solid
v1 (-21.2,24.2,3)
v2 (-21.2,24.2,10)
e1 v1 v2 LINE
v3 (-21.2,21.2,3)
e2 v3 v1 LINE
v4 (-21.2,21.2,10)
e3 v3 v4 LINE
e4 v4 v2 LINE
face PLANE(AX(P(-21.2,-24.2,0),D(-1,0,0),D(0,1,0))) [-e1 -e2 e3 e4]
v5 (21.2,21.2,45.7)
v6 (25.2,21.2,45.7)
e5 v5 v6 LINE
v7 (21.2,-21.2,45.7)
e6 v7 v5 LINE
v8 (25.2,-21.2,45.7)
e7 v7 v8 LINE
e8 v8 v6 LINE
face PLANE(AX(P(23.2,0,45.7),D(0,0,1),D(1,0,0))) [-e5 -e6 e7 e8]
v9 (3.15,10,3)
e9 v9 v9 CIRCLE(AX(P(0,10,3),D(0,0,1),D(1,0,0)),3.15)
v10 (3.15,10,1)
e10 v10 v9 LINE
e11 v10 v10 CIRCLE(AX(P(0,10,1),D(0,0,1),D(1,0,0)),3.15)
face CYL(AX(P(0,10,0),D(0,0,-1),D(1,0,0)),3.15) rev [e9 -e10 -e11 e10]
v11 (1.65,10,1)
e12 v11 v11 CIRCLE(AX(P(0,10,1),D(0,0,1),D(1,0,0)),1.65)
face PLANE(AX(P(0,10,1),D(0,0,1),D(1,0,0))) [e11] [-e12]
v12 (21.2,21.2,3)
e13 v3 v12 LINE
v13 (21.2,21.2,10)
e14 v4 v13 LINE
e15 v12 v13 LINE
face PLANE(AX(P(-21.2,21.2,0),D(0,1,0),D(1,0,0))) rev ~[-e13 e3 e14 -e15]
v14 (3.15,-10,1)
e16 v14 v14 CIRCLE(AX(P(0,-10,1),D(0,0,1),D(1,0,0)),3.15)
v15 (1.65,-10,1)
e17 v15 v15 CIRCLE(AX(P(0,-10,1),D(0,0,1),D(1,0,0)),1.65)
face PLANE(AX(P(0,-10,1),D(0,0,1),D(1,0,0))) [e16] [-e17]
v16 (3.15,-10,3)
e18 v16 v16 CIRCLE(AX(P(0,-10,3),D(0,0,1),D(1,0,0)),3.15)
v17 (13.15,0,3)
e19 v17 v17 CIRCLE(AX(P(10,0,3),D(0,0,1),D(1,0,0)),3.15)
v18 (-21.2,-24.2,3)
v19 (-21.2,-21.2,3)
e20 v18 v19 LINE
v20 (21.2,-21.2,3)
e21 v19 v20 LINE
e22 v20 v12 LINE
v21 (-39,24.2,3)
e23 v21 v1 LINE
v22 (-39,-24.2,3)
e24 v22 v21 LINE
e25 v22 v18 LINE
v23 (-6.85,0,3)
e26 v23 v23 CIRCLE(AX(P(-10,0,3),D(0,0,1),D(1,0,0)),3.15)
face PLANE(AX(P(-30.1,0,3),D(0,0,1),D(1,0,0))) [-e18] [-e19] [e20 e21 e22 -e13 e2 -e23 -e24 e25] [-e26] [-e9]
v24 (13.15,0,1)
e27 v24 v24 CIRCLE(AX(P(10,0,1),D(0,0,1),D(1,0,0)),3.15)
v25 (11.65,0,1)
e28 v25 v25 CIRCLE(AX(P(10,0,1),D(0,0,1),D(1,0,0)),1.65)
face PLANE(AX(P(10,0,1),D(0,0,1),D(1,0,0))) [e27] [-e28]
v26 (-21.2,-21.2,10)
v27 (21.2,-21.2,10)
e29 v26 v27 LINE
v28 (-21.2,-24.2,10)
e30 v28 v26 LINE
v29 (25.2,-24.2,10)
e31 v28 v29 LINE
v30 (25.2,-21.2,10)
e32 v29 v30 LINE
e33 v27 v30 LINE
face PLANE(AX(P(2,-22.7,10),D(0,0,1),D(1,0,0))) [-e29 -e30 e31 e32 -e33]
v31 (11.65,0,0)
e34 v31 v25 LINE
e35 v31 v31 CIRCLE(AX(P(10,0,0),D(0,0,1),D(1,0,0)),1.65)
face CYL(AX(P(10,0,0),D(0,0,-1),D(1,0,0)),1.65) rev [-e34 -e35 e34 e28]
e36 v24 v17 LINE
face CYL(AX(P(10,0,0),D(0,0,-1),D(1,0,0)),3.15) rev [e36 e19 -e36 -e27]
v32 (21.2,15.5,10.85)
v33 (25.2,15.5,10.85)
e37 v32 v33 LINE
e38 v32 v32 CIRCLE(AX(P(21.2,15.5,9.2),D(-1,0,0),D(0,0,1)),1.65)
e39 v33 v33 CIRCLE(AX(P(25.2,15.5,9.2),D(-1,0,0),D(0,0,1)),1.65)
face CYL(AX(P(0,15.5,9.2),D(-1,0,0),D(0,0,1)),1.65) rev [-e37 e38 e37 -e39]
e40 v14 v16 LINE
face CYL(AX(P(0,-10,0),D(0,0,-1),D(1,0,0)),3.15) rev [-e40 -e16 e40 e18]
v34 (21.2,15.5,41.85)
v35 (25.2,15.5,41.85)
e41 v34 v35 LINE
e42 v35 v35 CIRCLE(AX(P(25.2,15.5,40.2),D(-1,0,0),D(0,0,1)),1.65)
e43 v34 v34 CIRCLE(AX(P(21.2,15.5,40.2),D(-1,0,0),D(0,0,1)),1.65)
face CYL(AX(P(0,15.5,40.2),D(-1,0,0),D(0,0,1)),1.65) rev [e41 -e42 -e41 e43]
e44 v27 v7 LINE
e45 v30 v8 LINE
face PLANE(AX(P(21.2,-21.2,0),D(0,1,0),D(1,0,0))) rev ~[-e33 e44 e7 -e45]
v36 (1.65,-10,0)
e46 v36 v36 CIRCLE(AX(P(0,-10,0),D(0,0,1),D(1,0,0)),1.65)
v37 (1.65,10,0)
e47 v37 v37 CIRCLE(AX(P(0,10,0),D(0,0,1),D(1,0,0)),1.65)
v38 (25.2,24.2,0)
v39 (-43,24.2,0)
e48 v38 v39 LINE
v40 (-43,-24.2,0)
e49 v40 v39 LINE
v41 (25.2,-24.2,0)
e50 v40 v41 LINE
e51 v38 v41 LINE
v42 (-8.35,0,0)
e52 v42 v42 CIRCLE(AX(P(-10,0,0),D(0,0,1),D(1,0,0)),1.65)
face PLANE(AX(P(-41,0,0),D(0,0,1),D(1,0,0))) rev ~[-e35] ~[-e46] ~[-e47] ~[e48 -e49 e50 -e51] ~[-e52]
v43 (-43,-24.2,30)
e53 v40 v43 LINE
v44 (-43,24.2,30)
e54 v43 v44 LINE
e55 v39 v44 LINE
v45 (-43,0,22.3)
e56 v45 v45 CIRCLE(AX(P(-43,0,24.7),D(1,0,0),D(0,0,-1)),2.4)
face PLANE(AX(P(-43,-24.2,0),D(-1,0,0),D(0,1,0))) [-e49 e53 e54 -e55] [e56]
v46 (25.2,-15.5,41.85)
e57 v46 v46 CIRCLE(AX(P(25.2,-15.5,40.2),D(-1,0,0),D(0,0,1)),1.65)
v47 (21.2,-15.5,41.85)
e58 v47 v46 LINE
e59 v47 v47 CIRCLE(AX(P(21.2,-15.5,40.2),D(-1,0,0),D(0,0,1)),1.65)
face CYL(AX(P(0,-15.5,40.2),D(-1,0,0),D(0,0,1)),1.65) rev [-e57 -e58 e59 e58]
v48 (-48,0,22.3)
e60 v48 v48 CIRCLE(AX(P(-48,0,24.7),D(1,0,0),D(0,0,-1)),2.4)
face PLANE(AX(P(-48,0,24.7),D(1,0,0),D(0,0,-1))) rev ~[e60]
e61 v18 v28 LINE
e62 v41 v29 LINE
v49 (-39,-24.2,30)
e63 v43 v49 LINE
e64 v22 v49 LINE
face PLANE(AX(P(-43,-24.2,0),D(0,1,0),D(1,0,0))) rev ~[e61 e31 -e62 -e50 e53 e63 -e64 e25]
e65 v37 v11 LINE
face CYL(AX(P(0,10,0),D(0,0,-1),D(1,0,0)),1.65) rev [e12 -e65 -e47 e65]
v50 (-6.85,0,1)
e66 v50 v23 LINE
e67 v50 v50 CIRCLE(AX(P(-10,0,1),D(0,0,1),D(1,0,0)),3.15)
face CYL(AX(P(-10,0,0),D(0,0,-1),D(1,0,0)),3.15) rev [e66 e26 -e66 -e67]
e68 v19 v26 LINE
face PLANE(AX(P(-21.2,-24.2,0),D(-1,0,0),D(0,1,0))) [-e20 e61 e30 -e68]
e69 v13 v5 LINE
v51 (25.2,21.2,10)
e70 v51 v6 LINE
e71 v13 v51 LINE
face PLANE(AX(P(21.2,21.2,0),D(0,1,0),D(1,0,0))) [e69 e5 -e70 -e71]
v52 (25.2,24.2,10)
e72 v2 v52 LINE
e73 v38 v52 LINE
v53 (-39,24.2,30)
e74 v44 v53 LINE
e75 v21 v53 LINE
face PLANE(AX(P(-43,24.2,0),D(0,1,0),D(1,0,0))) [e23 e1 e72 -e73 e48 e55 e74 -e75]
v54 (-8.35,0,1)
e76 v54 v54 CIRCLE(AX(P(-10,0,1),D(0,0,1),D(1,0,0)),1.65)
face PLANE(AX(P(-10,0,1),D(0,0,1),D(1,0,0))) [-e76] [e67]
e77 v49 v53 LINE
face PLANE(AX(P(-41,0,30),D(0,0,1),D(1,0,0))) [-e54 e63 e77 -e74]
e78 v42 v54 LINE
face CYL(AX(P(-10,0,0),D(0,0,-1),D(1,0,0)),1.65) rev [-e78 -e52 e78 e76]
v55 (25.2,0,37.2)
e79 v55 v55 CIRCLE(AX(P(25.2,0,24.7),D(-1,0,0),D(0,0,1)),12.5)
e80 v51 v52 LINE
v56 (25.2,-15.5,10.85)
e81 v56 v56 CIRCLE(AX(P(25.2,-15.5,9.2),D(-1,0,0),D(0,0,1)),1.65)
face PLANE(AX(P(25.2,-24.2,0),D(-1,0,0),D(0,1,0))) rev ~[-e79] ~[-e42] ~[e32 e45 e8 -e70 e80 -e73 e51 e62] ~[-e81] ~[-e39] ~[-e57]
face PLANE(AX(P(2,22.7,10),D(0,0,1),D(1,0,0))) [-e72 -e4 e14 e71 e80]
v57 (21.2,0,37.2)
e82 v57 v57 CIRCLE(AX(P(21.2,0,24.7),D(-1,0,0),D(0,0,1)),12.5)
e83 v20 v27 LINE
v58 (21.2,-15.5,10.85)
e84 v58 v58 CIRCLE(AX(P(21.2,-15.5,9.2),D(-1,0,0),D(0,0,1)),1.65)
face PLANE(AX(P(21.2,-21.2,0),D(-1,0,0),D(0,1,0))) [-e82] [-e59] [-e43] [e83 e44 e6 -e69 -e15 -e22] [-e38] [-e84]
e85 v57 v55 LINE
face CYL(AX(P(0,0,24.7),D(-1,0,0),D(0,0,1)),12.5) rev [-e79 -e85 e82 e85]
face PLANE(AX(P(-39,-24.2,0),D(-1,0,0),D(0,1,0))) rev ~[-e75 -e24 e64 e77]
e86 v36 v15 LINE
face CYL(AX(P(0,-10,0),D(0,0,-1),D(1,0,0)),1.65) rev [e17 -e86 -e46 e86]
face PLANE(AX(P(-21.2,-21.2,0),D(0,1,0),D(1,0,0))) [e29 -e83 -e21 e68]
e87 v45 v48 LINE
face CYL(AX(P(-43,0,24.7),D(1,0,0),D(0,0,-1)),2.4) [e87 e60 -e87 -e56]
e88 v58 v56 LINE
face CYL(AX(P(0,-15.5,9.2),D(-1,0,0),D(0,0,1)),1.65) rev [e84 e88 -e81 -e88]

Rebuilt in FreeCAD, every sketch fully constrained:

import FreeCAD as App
import Part
import Sketcher
Q = App.Units.Quantity

doc = App.newDocument("Part")
params = doc.addObject("Spreadsheet::Sheet", "Params")
for row, (alias, value) in enumerate([
    ("sketch1_diameter", "6.3 mm"),
    ("sketch1_width", "42.4 mm"),
    ("pad1_length", "3 mm"),
    ("sketch2_diameter", "6.3 mm"),
    ("sketch2_diameter2", "3.3 mm"),
    ("pad2_length", "1 mm"),
    ("sketch3_width", "4 mm"),
    ("sketch3_height", "42.4 mm"),
    ("pad3_length", "45.7 mm"),
    ("sketch4_diameter", "25 mm"),
    ("sketch4_diameter2", "3.3 mm"),
    ("pocket1_length", "45.2 mm"),
    ("sketch5_height", "3 mm"),
    ("sketch5_width", "46.4 mm"),
    ("pad4_length", "10 mm"),
    ("sketch6_width", "17.8 mm"),
    ("sketch6_height", "48.4 mm"),
    ("pad5_length", "3 mm"),
    ("sketch7_width", "4 mm"),
    ("sketch7_height", "48.4 mm"),
    ("pad6_length", "30 mm"),
    ("sketch8_diameter", "4.8 mm"),
    ("pad7_length", "5 mm"),
], start=1):
    params.set(f"A{row}", alias)
    params.set(f"B{row}", "=" + value)
    params.setAlias(f"B{row}", alias)

body = doc.addObject("PartDesign::Body", "Body")

# Sketch on XY plane
sketch1 = body.newObject("Sketcher::SketchObject", "Sketch")
sketch1.AttachmentSupport = (doc.getObject("XY_Plane"), [""])
sketch1.MapMode = "FlatFace"
sketch1.addGeometry([
    Part.LineSegment(App.Vector(-21.2, 21.2, 0), App.Vector(-21.2, -21.2, 0)),  # 0
    Part.LineSegment(App.Vector(-21.2, -21.2, 0), App.Vector(21.2, -21.2, 0)),  # 1
    Part.LineSegment(App.Vector(21.2, -21.2, 0), App.Vector(21.2, 21.2, 0)),  # 2
    Part.LineSegment(App.Vector(21.2, 21.2, 0), App.Vector(-21.2, 21.2, 0)),  # 3
    Part.Circle(App.Vector(0, -10, 0), App.Vector(0, 0, 1), 3.1),  # 4
    Part.Circle(App.Vector(-10, 0, 0), App.Vector(0, 0, 1), 3.1),  # 5
    Part.Circle(App.Vector(10, 0, 0), App.Vector(0, 0, 1), 3.1),  # 6
    Part.Circle(App.Vector(0, 10, 0), App.Vector(0, 0, 1), 3.1),  # 7
], False)
sketch1.addConstraint([
    Sketcher.Constraint("Coincident", 0, 2, 1, 1),
    Sketcher.Constraint("Coincident", 1, 2, 2, 1),
    Sketcher.Constraint("Coincident", 2, 2, 3, 1),
    Sketcher.Constraint("Coincident", 3, 2, 0, 1),
    Sketcher.Constraint("Vertical", 0),
    Sketcher.Constraint("Horizontal", 1),
    Sketcher.Constraint("Vertical", 2),
    Sketcher.Constraint("Horizontal", 3),
    Sketcher.Constraint("Equal", 4, 5),
    Sketcher.Constraint("Equal", 5, 6),
    Sketcher.Constraint("Equal", 6, 7),
    Sketcher.Constraint("Symmetric", 5, 3, 6, 3, -1, 1),
    Sketcher.Constraint("Symmetric", 4, 3, 7, 3, -1, 1),
    Sketcher.Constraint("Symmetric", 0, 2, 2, 2, -1, 1),
    Sketcher.Constraint("PointOnObject", 4, 3, -2),
    Sketcher.Constraint("PointOnObject", 5, 3, -1),
    Sketcher.Constraint("Equal", 3, 0),
    Sketcher.Constraint("Diameter", 4, Q("6.3 mm")),
    Sketcher.Constraint("DistanceX", 1, 1, 1, 2, Q("42.4 mm")),
    Sketcher.Constraint("DistanceY", 4, 3, -1, 1, Q("10 mm")),
    Sketcher.Constraint("DistanceX", 5, 3, -1, 1, Q("10 mm")),
])
sketch1.setExpression("Constraints[17]", "Params.sketch1_diameter")
sketch1.setExpression("Constraints[18]", "Params.sketch1_width")
pad1 = body.newObject("PartDesign::Pad", "Pad")
pad1.Profile = sketch1
pad1.setExpression("Length", "Params.pad1_length")

# Sketch on XY plane
sketch2 = body.newObject("Sketcher::SketchObject", "Sketch001")
sketch2.AttachmentSupport = (doc.getObject("XY_Plane"), [""])
sketch2.MapMode = "FlatFace"
sketch2.addGeometry([
    Part.Circle(App.Vector(-10, 0, 0), App.Vector(0, 0, 1), 3.1),  # 0
    Part.Circle(App.Vector(-10, 0, 0), App.Vector(0, 0, 1), 1.6),  # 1
    Part.Circle(App.Vector(0, 10, 0), App.Vector(0, 0, 1), 3.1),  # 2
    Part.Circle(App.Vector(0, 10, 0), App.Vector(0, 0, 1), 1.6),  # 3
    Part.Circle(App.Vector(10, 0, 0), App.Vector(0, 0, 1), 3.1),  # 4
    Part.Circle(App.Vector(10, 0, 0), App.Vector(0, 0, 1), 1.6),  # 5
    Part.Circle(App.Vector(0, -10, 0), App.Vector(0, 0, 1), 3.1),  # 6
    Part.Circle(App.Vector(0, -10, 0), App.Vector(0, 0, 1), 1.6),  # 7
], False)
sketch2.addConstraint([
    Sketcher.Constraint("Coincident", 1, 3, 0, 3),
    Sketcher.Constraint("Coincident", 3, 3, 2, 3),
    Sketcher.Constraint("Coincident", 5, 3, 4, 3),
    Sketcher.Constraint("Coincident", 7, 3, 6, 3),
    Sketcher.Constraint("Equal", 0, 2),
    Sketcher.Constraint("Equal", 1, 3),
    Sketcher.Constraint("Equal", 2, 4),
    Sketcher.Constraint("Equal", 3, 5),
    Sketcher.Constraint("Equal", 4, 6),
    Sketcher.Constraint("Equal", 5, 7),
    Sketcher.Constraint("Symmetric", 0, 3, 4, 3, -1, 1),
    Sketcher.Constraint("Symmetric", 2, 3, 6, 3, -1, 1),
    Sketcher.Constraint("PointOnObject", 0, 3, -1),
    Sketcher.Constraint("PointOnObject", 2, 3, -2),
    Sketcher.Constraint("Diameter", 0, Q("6.3 mm")),
    Sketcher.Constraint("Diameter", 1, Q("3.3 mm")),
    Sketcher.Constraint("DistanceX", 0, 3, -1, 1, Q("10 mm")),
    Sketcher.Constraint("DistanceY", -1, 1, 2, 3, Q("10 mm")),
])
sketch2.setExpression("Constraints[14]", "Params.sketch2_diameter")
sketch2.setExpression("Constraints[15]", "Params.sketch2_diameter2")
pad2 = body.newObject("PartDesign::Pad", "Pad001")
pad2.Profile = sketch2
pad2.setExpression("Length", "Params.pad2_length")

# Sketch on XY plane
sketch3 = body.newObject("Sketcher::SketchObject", "Sketch002")
sketch3.AttachmentSupport = (doc.getObject("XY_Plane"), [""])
sketch3.MapMode = "FlatFace"
sketch3.addGeometry([
    Part.LineSegment(App.Vector(21.2, 21.2, 0), App.Vector(21.2, -21.2, 0)),
    Part.LineSegment(App.Vector(21.2, -21.2, 0), App.Vector(25.2, -21.2, 0)),
    Part.LineSegment(App.Vector(25.2, -21.2, 0), App.Vector(25.2, 21.2, 0)),
    Part.LineSegment(App.Vector(25.2, 21.2, 0), App.Vector(21.2, 21.2, 0)),
], False)
sketch3.addConstraint([
    Sketcher.Constraint("Coincident", 0, 2, 1, 1),
    Sketcher.Constraint("Coincident", 1, 2, 2, 1),
    Sketcher.Constraint("Coincident", 2, 2, 3, 1),
    Sketcher.Constraint("Coincident", 3, 2, 0, 1),
    Sketcher.Constraint("Vertical", 0),
    Sketcher.Constraint("Horizontal", 1),
    Sketcher.Constraint("Vertical", 2),
    Sketcher.Constraint("Horizontal", 3),
    Sketcher.Constraint("DistanceX", 1, 1, 1, 2, Q("4 mm")),
    Sketcher.Constraint("DistanceY", 0, 2, 0, 1, Q("42.4 mm")),
    Sketcher.Constraint("DistanceX", -1, 1, 0, 2, Q("21.2 mm")),
    Sketcher.Constraint("DistanceY", 0, 2, -1, 1, Q("21.2 mm")),
])
sketch3.setExpression("Constraints[8]", "Params.sketch3_width")
sketch3.setExpression("Constraints[9]", "Params.sketch3_height")
pad3 = body.newObject("PartDesign::Pad", "Pad002")
pad3.Profile = sketch3
pad3.setExpression("Length", "Params.pad3_length")

# Sketch on YZ plane
sketch4 = body.newObject("Sketcher::SketchObject", "Sketch003")
sketch4.AttachmentSupport = (doc.getObject("YZ_Plane"), [""])
sketch4.MapMode = "FlatFace"
sketch4.addGeometry([
    Part.Circle(App.Vector(-15.5, 9.2, 0), App.Vector(0, 0, 1), 1.6),  # 0
    Part.Circle(App.Vector(-15.5, 40.2, 0), App.Vector(0, 0, 1), 1.6),  # 1
    Part.Circle(App.Vector(15.5, 40.2, 0), App.Vector(0, 0, 1), 1.6),  # 2
    Part.Circle(App.Vector(15.5, 9.2, 0), App.Vector(0, 0, 1), 1.6),  # 3
    Part.Circle(App.Vector(0, 24.7, 0), App.Vector(0, 0, 1), 12.5),  # 4
], False)
sketch4.addConstraint([
    Sketcher.Constraint("Equal", 0, 1),
    Sketcher.Constraint("Equal", 1, 2),
    Sketcher.Constraint("Equal", 2, 3),
    Sketcher.Constraint("Symmetric", 1, 3, 2, 3, -2),
    Sketcher.Constraint("Symmetric", 0, 3, 3, 3, -2),
    Sketcher.Constraint("PointOnObject", 4, 3, -2),
    Sketcher.Constraint("Vertical", 0, 3, 1, 3),
    Sketcher.Constraint("Diameter", 4, Q("25 mm")),
    Sketcher.Constraint("Diameter", 0, Q("3.3 mm")),
    Sketcher.Constraint("DistanceY", 0, 3, 1, 3, Q("31 mm")),
    Sketcher.Constraint("DistanceX", 1, 3, 2, 3, Q("31 mm")),
    Sketcher.Constraint("DistanceY", -1, 1, 0, 3, Q("9.2 mm")),
    Sketcher.Constraint("DistanceY", -1, 1, 4, 3, Q("24.7 mm")),
])
sketch4.setExpression("Constraints[7]", "Params.sketch4_diameter")
sketch4.setExpression("Constraints[8]", "Params.sketch4_diameter2")
pocket1 = body.newObject("PartDesign::Pocket", "Pocket")
pocket1.Profile = sketch4
pocket1.setExpression("Length", "Params.pocket1_length")
pocket1.Reversed = True

# Sketch on XY plane
sketch5 = body.newObject("Sketcher::SketchObject", "Sketch004")
sketch5.AttachmentSupport = (doc.getObject("XY_Plane"), [""])
sketch5.MapMode = "FlatFace"
sketch5.addGeometry([
    Part.LineSegment(App.Vector(-21.2, -21.2, 0), App.Vector(-21.2, -24.2, 0)),  # 0
    Part.LineSegment(App.Vector(-21.2, -24.2, 0), App.Vector(25.2, -24.2, 0)),  # 1
    Part.LineSegment(App.Vector(25.2, -24.2, 0), App.Vector(25.2, -21.2, 0)),  # 2
    Part.LineSegment(App.Vector(25.2, -21.2, 0), App.Vector(-21.2, -21.2, 0)),  # 3
    Part.LineSegment(App.Vector(-21.2, 24.2, 0), App.Vector(-21.2, 21.2, 0)),  # 4
    Part.LineSegment(App.Vector(-21.2, 21.2, 0), App.Vector(25.2, 21.2, 0)),  # 5
    Part.LineSegment(App.Vector(25.2, 21.2, 0), App.Vector(25.2, 24.2, 0)),  # 6
    Part.LineSegment(App.Vector(25.2, 24.2, 0), App.Vector(-21.2, 24.2, 0)),  # 7
], False)
sketch5.addConstraint([
    Sketcher.Constraint("Coincident", 0, 2, 1, 1),
    Sketcher.Constraint("Coincident", 1, 2, 2, 1),
    Sketcher.Constraint("Coincident", 2, 2, 3, 1),
    Sketcher.Constraint("Coincident", 3, 2, 0, 1),
    Sketcher.Constraint("Coincident", 4, 2, 5, 1),
    Sketcher.Constraint("Coincident", 5, 2, 6, 1),
    Sketcher.Constraint("Coincident", 6, 2, 7, 1),
    Sketcher.Constraint("Coincident", 7, 2, 4, 1),
    Sketcher.Constraint("Vertical", 0),
    Sketcher.Constraint("Horizontal", 1),
    Sketcher.Constraint("Vertical", 2),
    Sketcher.Constraint("Horizontal", 3),
    Sketcher.Constraint("Vertical", 4),
    Sketcher.Constraint("Horizontal", 5),
    Sketcher.Constraint("Vertical", 6),
    Sketcher.Constraint("Horizontal", 7),
    Sketcher.Constraint("Symmetric", 3, 2, 4, 2, -1),
    Sketcher.Constraint("Symmetric", 1, 2, 6, 2, -1),
    Sketcher.Constraint("DistanceY", 0, 2, 0, 1, Q("3 mm")),
    Sketcher.Constraint("DistanceX", 1, 1, 1, 2, Q("46.4 mm")),
    Sketcher.Constraint("DistanceX", 0, 2, -1, 1, Q("21.2 mm")),
    Sketcher.Constraint("DistanceY", 0, 2, -1, 1, Q("24.2 mm")),
])
sketch5.setExpression("Constraints[18]", "Params.sketch5_height")
sketch5.setExpression("Constraints[19]", "Params.sketch5_width")
pad4 = body.newObject("PartDesign::Pad", "Pad003")
pad4.Profile = sketch5
pad4.setExpression("Length", "Params.pad4_length")

# Sketch on XY plane
sketch6 = body.newObject("Sketcher::SketchObject", "Sketch005")
sketch6.AttachmentSupport = (doc.getObject("XY_Plane"), [""])
sketch6.MapMode = "FlatFace"
sketch6.addGeometry([
    Part.LineSegment(App.Vector(-39, 24, 0), App.Vector(-39, -24, 0)),
    Part.LineSegment(App.Vector(-39, -24, 0), App.Vector(-21, -24, 0)),
    Part.LineSegment(App.Vector(-21, -24, 0), App.Vector(-21, 24, 0)),
    Part.LineSegment(App.Vector(-21, 24, 0), App.Vector(-39, 24, 0)),
], False)
sketch6.addConstraint([
    Sketcher.Constraint("Coincident", 0, 2, 1, 1),
    Sketcher.Constraint("Coincident", 1, 2, 2, 1),
    Sketcher.Constraint("Coincident", 2, 2, 3, 1),
    Sketcher.Constraint("Coincident", 3, 2, 0, 1),
    Sketcher.Constraint("Vertical", 0),
    Sketcher.Constraint("Horizontal", 1),
    Sketcher.Constraint("Vertical", 2),
    Sketcher.Constraint("Horizontal", 3),
    Sketcher.Constraint("DistanceX", 1, 1, 1, 2, Q("17.8 mm")),
    Sketcher.Constraint("DistanceY", 0, 2, 0, 1, Q("48.4 mm")),
    Sketcher.Constraint("DistanceX", 0, 2, -1, 1, Q("39 mm")),
    Sketcher.Constraint("DistanceY", 0, 2, -1, 1, Q("24.2 mm")),
])
sketch6.setExpression("Constraints[8]", "Params.sketch6_width")
sketch6.setExpression("Constraints[9]", "Params.sketch6_height")
pad5 = body.newObject("PartDesign::Pad", "Pad004")
pad5.Profile = sketch6
pad5.setExpression("Length", "Params.pad5_length")

# Sketch on XY plane
sketch7 = body.newObject("Sketcher::SketchObject", "Sketch006")
sketch7.AttachmentSupport = (doc.getObject("XY_Plane"), [""])
sketch7.MapMode = "FlatFace"
sketch7.addGeometry([
    Part.LineSegment(App.Vector(-43, 24.2, 0), App.Vector(-43, -24.2, 0)),
    Part.LineSegment(App.Vector(-43, -24.2, 0), App.Vector(-39, -24.2, 0)),
    Part.LineSegment(App.Vector(-39, -24.2, 0), App.Vector(-39, 24.2, 0)),
    Part.LineSegment(App.Vector(-39, 24.2, 0), App.Vector(-43, 24.2, 0)),
], False)
sketch7.addConstraint([
    Sketcher.Constraint("Coincident", 0, 2, 1, 1),
    Sketcher.Constraint("Coincident", 1, 2, 2, 1),
    Sketcher.Constraint("Coincident", 2, 2, 3, 1),
    Sketcher.Constraint("Coincident", 3, 2, 0, 1),
    Sketcher.Constraint("Vertical", 0),
    Sketcher.Constraint("Horizontal", 1),
    Sketcher.Constraint("Vertical", 2),
    Sketcher.Constraint("Horizontal", 3),
    Sketcher.Constraint("DistanceX", 1, 1, 1, 2, Q("4 mm")),
    Sketcher.Constraint("DistanceY", 0, 2, 0, 1, Q("48.4 mm")),
    Sketcher.Constraint("DistanceX", 0, 2, -1, 1, Q("43 mm")),
    Sketcher.Constraint("DistanceY", 0, 2, -1, 1, Q("24.2 mm")),
])
sketch7.setExpression("Constraints[8]", "Params.sketch7_width")
sketch7.setExpression("Constraints[9]", "Params.sketch7_height")
pad6 = body.newObject("PartDesign::Pad", "Pad005")
pad6.Profile = sketch7
pad6.setExpression("Length", "Params.pad6_length")

# Sketch on YZ plane
sketch8 = body.newObject("Sketcher::SketchObject", "Sketch007")
sketch8.AttachmentSupport = (doc.getObject("YZ_Plane"), [""])
sketch8.MapMode = "FlatFace"
sketch8.AttachmentOffset = App.Placement(App.Vector(0, 0, -43), App.Rotation())
sketch8.addGeometry(Part.Circle(App.Vector(0, 24.7, 0), App.Vector(0, 0, 1), 2.4), False)
sketch8.addConstraint([
    Sketcher.Constraint("PointOnObject", 0, 3, -2),
    Sketcher.Constraint("Diameter", 0, Q("4.8 mm")),
    Sketcher.Constraint("DistanceY", -1, 1, 0, 3, Q("24.7 mm")),
])
sketch8.setExpression("Constraints[1]", "Params.sketch8_diameter")
pad7 = body.newObject("PartDesign::Pad", "Pad006")
pad7.Profile = sketch8
pad7.setExpression("Length", "Params.pad7_length")
pad7.Reversed = True

doc.recompute()
